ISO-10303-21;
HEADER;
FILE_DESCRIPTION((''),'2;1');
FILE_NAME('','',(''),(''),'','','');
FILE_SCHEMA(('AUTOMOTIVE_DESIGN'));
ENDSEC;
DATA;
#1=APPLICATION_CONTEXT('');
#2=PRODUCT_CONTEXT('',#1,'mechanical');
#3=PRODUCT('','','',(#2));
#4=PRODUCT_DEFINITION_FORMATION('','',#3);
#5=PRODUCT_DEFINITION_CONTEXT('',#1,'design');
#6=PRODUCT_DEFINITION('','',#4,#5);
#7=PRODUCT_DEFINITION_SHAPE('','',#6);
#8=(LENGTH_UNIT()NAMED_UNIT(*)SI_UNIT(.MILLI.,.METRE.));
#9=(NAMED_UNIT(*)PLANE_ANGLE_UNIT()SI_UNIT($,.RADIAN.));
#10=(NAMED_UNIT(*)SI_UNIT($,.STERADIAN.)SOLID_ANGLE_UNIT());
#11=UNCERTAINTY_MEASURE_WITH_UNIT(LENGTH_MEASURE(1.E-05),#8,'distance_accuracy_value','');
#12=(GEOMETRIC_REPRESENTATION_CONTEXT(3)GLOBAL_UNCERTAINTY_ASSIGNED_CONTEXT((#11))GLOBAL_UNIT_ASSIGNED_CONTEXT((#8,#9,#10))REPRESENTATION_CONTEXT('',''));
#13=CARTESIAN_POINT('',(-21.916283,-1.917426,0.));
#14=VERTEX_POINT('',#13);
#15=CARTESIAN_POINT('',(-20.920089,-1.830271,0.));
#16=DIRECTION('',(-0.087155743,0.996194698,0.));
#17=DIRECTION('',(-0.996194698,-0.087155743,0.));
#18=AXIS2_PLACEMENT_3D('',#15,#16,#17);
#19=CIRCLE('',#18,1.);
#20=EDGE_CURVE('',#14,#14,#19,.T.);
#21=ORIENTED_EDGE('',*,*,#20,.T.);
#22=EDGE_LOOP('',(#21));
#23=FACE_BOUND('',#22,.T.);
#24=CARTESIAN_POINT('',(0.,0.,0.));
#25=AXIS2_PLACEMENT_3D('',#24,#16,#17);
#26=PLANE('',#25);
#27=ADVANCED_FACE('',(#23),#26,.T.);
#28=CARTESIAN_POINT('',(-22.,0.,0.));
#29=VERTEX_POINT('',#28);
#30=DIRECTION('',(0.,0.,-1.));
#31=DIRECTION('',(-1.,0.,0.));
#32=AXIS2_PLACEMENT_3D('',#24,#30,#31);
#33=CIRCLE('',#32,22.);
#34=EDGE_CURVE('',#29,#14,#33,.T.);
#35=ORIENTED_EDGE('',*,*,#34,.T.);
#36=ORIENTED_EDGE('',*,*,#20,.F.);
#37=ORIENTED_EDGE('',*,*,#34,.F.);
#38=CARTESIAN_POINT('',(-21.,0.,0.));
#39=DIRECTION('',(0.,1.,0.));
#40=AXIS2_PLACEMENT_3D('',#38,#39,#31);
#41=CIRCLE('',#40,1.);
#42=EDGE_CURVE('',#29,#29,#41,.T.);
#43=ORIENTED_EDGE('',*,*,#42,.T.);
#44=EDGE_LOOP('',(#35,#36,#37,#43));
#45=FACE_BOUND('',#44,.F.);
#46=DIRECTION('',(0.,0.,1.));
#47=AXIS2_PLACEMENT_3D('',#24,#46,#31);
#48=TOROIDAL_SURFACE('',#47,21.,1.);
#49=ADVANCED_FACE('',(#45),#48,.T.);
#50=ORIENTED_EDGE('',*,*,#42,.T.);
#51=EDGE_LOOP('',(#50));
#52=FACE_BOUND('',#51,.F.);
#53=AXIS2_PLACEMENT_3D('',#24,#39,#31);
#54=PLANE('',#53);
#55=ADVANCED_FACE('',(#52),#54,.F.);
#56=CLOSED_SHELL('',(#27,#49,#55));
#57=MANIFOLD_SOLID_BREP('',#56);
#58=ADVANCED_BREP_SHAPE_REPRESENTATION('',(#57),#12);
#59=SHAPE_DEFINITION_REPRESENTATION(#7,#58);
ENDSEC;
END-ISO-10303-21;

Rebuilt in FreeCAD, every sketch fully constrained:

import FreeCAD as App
import Part
import Sketcher
Q = App.Units.Quantity

doc = App.newDocument("Part")
body = doc.addObject("PartDesign::Body", "Body")

# Sketch on XZ plane
sketch1 = doc.addObject("Sketcher::SketchObject", "Sketch")
body.addObject(sketch1)
sketch1.AttachmentSupport = (doc.XZ_Plane, [""])
sketch1.MapMode = "FlatFace"
sketch1.addGeometry(Part.Circle(App.Vector(-21, 0, 0), App.Vector(0, 0, 1), 1), False)
sketch1.addConstraint([
    Sketcher.Constraint("PointOnObject", 0, 3, -1),
    Sketcher.Constraint("Diameter", 0, Q("2 mm")),
    Sketcher.Constraint("DistanceX", 0, 3, -1, 1, Q("21 mm")),
])
revolution = doc.addObject("PartDesign::Revolution", "Revolution")
body.addObject(revolution)
revolution.Profile = sketch1
revolution.ReferenceAxis = (sketch1, ["V_Axis"])
revolution.Angle = 355
revolution.Reversed = True

doc.recompute()
